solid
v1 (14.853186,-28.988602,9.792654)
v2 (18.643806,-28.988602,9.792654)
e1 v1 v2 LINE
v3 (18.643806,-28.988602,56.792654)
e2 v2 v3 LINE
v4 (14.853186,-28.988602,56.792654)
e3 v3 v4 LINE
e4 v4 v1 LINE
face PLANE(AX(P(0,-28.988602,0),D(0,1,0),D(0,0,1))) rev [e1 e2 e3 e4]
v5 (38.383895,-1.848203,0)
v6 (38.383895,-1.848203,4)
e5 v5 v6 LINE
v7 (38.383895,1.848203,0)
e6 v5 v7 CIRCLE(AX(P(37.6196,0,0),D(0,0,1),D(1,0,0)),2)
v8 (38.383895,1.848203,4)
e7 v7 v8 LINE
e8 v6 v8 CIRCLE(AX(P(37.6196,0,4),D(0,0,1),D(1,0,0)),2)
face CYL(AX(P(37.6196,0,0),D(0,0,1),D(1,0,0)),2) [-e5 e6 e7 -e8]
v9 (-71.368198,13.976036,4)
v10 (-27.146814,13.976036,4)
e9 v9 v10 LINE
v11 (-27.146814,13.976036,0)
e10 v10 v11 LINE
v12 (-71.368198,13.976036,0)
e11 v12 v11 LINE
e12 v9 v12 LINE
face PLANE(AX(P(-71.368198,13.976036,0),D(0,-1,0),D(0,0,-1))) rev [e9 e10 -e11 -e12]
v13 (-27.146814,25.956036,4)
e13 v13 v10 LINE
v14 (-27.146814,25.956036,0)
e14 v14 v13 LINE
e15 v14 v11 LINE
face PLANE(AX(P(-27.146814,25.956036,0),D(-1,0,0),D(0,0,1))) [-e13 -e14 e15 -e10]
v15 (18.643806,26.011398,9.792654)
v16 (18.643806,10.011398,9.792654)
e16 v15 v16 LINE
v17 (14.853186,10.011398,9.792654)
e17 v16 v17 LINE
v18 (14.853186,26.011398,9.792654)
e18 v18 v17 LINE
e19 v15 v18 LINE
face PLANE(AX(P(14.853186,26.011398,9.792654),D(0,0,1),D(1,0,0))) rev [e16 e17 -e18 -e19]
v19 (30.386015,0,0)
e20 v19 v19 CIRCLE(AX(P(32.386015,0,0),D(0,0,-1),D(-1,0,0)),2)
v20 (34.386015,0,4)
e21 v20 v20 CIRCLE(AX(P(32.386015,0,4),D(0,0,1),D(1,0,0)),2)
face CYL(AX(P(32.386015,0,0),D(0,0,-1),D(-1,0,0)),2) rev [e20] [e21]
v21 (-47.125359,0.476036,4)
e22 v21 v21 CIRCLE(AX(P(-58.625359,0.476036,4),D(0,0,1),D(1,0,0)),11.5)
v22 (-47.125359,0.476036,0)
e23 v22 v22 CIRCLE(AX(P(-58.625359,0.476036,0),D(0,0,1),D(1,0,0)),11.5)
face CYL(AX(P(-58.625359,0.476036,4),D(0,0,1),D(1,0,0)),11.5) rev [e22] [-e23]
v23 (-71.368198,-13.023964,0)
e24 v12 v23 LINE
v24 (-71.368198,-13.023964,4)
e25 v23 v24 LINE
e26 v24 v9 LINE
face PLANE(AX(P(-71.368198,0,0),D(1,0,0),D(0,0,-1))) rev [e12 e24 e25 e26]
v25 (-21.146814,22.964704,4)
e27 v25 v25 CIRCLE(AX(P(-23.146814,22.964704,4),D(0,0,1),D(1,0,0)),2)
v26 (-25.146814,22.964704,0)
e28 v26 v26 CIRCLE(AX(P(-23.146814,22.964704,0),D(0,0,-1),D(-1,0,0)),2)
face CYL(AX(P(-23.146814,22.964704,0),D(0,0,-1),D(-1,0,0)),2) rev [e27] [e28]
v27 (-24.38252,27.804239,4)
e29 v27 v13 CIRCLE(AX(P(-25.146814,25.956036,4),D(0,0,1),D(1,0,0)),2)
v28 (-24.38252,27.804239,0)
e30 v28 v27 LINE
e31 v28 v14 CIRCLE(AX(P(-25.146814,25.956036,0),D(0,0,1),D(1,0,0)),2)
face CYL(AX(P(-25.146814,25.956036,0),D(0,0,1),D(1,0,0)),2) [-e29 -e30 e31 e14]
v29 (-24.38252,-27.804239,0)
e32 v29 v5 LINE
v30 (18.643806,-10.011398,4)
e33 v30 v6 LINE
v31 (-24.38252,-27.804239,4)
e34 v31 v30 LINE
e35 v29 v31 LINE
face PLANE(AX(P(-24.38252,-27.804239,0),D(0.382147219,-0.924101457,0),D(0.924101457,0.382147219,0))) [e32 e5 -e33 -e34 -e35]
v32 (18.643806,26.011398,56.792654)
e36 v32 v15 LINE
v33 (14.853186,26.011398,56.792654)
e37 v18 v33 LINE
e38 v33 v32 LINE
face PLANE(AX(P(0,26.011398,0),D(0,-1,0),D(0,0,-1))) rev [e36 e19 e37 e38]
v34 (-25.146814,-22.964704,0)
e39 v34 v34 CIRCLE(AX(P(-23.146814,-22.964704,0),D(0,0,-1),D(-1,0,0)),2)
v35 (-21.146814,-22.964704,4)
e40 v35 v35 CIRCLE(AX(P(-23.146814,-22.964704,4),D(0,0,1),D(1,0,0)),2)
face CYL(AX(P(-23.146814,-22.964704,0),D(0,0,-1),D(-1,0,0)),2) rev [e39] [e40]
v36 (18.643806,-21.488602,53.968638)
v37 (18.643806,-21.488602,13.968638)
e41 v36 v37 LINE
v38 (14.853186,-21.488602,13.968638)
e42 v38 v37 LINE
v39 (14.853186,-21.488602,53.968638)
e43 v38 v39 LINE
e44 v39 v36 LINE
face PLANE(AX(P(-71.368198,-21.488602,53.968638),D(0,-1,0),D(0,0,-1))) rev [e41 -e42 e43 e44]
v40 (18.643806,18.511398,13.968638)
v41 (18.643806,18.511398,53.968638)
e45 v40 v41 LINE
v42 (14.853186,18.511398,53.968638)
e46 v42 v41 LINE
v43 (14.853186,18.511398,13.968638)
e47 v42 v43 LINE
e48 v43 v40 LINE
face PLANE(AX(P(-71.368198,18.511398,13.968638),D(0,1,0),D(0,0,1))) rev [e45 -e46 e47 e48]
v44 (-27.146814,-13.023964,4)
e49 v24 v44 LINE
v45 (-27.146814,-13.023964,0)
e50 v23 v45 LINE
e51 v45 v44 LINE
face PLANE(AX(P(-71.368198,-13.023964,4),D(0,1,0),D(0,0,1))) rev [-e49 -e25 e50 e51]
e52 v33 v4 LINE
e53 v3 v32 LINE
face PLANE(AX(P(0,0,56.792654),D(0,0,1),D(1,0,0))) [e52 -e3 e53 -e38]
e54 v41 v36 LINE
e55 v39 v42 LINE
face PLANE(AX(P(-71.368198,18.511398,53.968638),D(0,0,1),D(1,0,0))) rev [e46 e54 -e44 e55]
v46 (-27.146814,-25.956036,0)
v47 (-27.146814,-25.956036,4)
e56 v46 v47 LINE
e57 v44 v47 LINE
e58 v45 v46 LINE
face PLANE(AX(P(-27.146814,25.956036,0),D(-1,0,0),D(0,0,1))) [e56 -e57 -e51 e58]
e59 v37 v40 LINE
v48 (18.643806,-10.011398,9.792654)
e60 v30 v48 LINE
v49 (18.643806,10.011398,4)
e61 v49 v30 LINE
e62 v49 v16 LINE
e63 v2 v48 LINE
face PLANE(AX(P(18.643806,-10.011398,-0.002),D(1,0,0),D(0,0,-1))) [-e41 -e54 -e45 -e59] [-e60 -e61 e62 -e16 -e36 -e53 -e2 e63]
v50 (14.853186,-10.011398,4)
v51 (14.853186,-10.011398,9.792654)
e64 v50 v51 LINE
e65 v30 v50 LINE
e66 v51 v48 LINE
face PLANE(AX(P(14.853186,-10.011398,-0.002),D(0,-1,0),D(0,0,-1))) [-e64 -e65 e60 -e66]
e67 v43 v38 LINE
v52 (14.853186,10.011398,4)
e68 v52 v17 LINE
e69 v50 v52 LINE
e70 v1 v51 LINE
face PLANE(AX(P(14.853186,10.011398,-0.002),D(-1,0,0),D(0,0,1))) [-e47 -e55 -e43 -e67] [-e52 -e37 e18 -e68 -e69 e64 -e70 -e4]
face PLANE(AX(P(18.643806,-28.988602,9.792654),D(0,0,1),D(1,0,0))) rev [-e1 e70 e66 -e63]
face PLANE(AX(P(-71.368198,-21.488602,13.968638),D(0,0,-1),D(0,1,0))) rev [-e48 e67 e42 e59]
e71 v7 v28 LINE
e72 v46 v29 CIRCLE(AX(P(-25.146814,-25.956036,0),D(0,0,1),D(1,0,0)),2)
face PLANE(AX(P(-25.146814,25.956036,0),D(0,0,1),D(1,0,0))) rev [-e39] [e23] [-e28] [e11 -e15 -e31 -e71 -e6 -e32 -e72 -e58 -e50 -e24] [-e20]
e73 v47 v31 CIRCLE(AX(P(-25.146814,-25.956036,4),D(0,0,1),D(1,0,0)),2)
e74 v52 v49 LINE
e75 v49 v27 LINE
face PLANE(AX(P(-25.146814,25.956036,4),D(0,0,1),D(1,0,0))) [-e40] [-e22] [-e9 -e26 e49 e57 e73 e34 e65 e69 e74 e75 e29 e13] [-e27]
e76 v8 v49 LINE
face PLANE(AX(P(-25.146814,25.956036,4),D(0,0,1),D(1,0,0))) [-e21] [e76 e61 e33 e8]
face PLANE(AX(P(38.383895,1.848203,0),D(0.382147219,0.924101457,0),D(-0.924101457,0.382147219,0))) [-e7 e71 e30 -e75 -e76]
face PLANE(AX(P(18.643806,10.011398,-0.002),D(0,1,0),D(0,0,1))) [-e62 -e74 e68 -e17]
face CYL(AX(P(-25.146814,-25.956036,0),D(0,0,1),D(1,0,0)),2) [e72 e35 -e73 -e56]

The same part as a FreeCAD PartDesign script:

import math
import FreeCAD as App
import Part
import Sketcher
from FreeCAD import Vector


def add_polygon(sketch, points):
    """Adds a closed chain of lines whose ends are joined by coincident constraints."""
    first, n = sketch.GeometryCount, len(points)
    for a, b in zip(points, points[1:] + points[:1]):
        sketch.addGeometry(Part.LineSegment(App.Vector(*a, 0), App.Vector(*b, 0)), False)
    for i in range(n):
        sketch.addConstraint(Sketcher.Constraint("Coincident", first + i, 2, first + (i + 1) % n, 1))

doc = App.newDocument("Part")
params = doc.addObject("Spreadsheet::Sheet", "Params")
for row, (alias, value) in enumerate([
    ("sketch1_radius", "2 mm"),
    ("pad1_length", "4 mm"),
    ("sketch2_width", "27 mm"),
    ("sketch2_height", "4 mm"),
    ("pad2_length", "44.221384 mm"),
    ("sketch4_height", "47 mm"),
    ("pad4_length", "16 mm"),
    ("sketch5_height", "47 mm"),
    ("pad5_length", "18.977205 mm"),
    ("sketch6_width", "40 mm"),
    ("sketch7_diameter", "23 mm"),
    ("hole_diameter", "23 mm"),
    ("sketch8_diameter", "4 mm"),
    ("hole2_diameter", "4 mm"),
    ("hole2_depth", "56.792654 mm"),
], start=1):
    params.set(f"A{row}", alias)
    params.set(f"B{row}", "=" + value)
    params.setAlias(f"B{row}", alias)

body = doc.addObject("PartDesign::Body", "Body")

# Sketch on XY plane
sketch1 = body.newObject("Sketcher::SketchObject", "Sketch")
sketch1.AttachmentSupport = (doc.getObject("XY_Plane"), [""])
sketch1.MapMode = "FlatFace"
sketch1.AttachmentOffset = App.Placement(Vector(0, 0, 4), App.Rotation())
sketch1.addGeometry(Part.LineSegment(Vector(-27.1, 26, 0), Vector(-27.1, -26, 0)), False)
sketch1.addGeometry(Part.ArcOfCircle(Part.Circle(Vector(-25.1, -26, 0), Vector(0, 0, 1), 2), math.radians(180), math.radians(292)), False)
sketch1.addGeometry(Part.LineSegment(Vector(-24.4, -27.8, 0), Vector(38.4, -1.8, 0)), False)
sketch1.addGeometry(Part.ArcOfCircle(Part.Circle(Vector(37.6, 0, 0), Vector(0, 0, 1), 2), math.radians(-68), math.radians(68)), False)
sketch1.addGeometry(Part.LineSegment(Vector(38.4, 1.8, 0), Vector(-24.4, 27.8, 0)), False)
sketch1.addGeometry(Part.ArcOfCircle(Part.Circle(Vector(-25.1, 26, 0), Vector(0, 0, 1), 2), math.radians(68), math.radians(180)), False)
sketch1.addConstraint(Sketcher.Constraint("Tangent", 0, 2, 1, 1))
sketch1.addConstraint(Sketcher.Constraint("Tangent", 1, 2, 2, 1))
sketch1.addConstraint(Sketcher.Constraint("Tangent", 2, 2, 3, 1))
sketch1.addConstraint(Sketcher.Constraint("Tangent", 3, 2, 4, 1))
sketch1.addConstraint(Sketcher.Constraint("Tangent", 4, 2, 5, 1))
sketch1.addConstraint(Sketcher.Constraint("Tangent", 5, 2, 0, 1))
sketch1.addConstraint(Sketcher.Constraint("Vertical", 0))
sketch1.addConstraint(Sketcher.Constraint("Equal", 1, 3))
sketch1.addConstraint(Sketcher.Constraint("Equal", 3, 5))
sketch1.addConstraint(Sketcher.Constraint("Symmetric", 2, 2, 3, 2, -1))
sketch1.addConstraint(Sketcher.Constraint("Radius", 1, 2.0))
sketch1.addConstraint(Sketcher.Constraint("DistanceX", -1, 1, 3, 3, 37.6196))
sketch1.addConstraint(Sketcher.Constraint("DistanceY", 0, 2, 0, 1, 51.912072))
sketch1.addConstraint(Sketcher.Constraint("DistanceX", 1, 2, -1, 1, 24.38252))
sketch1.setExpression("Constraints[10]", "Params.sketch1_radius")
pad1 = body.newObject("PartDesign::Pad", "Pad")
pad1.Profile = sketch1
pad1.setExpression("Length", "Params.pad1_length")
pad1.Reversed = True

# Sketch on YZ plane
sketch2 = body.newObject("Sketcher::SketchObject", "Sketch001")
sketch2.AttachmentSupport = (doc.getObject("YZ_Plane"), [""])
sketch2.MapMode = "FlatFace"
sketch2.AttachmentOffset = App.Placement(Vector(0, 0, -27.146814), App.Rotation())
add_polygon(sketch2, [(14, 0), (-13, 0), (-13, 4), (14, 4)])  # lines 0-3
sketch2.addConstraint(Sketcher.Constraint("Horizontal", 0))
sketch2.addConstraint(Sketcher.Constraint("Vertical", 1))
sketch2.addConstraint(Sketcher.Constraint("Horizontal", 2))
sketch2.addConstraint(Sketcher.Constraint("Vertical", 3))
sketch2.addConstraint(Sketcher.Constraint("PointOnObject", 0, 2, -1))
sketch2.addConstraint(Sketcher.Constraint("DistanceX", 0, 2, 0, 1, 27.0))
sketch2.addConstraint(Sketcher.Constraint("DistanceY", 1, 1, 1, 2, 4.0))
sketch2.addConstraint(Sketcher.Constraint("DistanceX", 0, 2, -1, 1, 13.023964))
sketch2.setExpression("Constraints[9]", "Params.sketch2_width")
sketch2.setExpression("Constraints[10]", "Params.sketch2_height")
pad2 = body.newObject("PartDesign::Pad", "Pad001")
pad2.Profile = sketch2
pad2.setExpression("Length", "Params.pad2_length")
pad2.Reversed = True

# Sketch on XY plane
sketch3 = body.newObject("Sketcher::SketchObject", "Sketch002")
sketch3.AttachmentSupport = (doc.getObject("XY_Plane"), [""])
sketch3.MapMode = "FlatFace"
sketch3.AttachmentOffset = App.Placement(Vector(0, 0, 56.792654), App.Rotation())
add_polygon(sketch3, [(14.9, 10), (14.9, -10), (18.6, -10), (18.6, 10)])  # lines 0-3
sketch3.addConstraint(Sketcher.Constraint("Vertical", 0))
sketch3.addConstraint(Sketcher.Constraint("Horizontal", 1))
sketch3.addConstraint(Sketcher.Constraint("Vertical", 2))
sketch3.addConstraint(Sketcher.Constraint("Horizontal", 3))
sketch3.addConstraint(Sketcher.Constraint("DistanceX", 1, 1, 1, 2, 3.79062))
sketch3.addConstraint(Sketcher.Constraint("DistanceY", 0, 2, 0, 1, 20.022795))
sketch3.addConstraint(Sketcher.Constraint("DistanceX", -1, 1, 0, 2, 14.853186))
sketch3.addConstraint(Sketcher.Constraint("DistanceY", 0, 2, -1, 1, 10.011398))
pad3 = body.newObject("PartDesign::Pad", "Pad002")
pad3.Profile = sketch3
pad3.Type = "UpToFirst"
pad3.Reversed = True

# Sketch on XZ plane
sketch4 = body.newObject("Sketcher::SketchObject", "Sketch003")
sketch4.AttachmentSupport = (doc.getObject("XZ_Plane"), [""])
sketch4.MapMode = "FlatFace"
sketch4.AttachmentOffset = App.Placement(Vector(0, 0, -10.011398), App.Rotation())
add_polygon(sketch4, [(18.6, 56.8), (18.6, 9.8), (14.9, 9.8), (14.9, 56.8)])  # lines 0-3
sketch4.addConstraint(Sketcher.Constraint("Vertical", 0))
sketch4.addConstraint(Sketcher.Constraint("Horizontal", 1))
sketch4.addConstraint(Sketcher.Constraint("Vertical", 2))
sketch4.addConstraint(Sketcher.Constraint("Horizontal", 3))
sketch4.addConstraint(Sketcher.Constraint("DistanceY", 0, 2, 0, 1, 47.0))
sketch4.addConstraint(Sketcher.Constraint("DistanceX", 1, 2, 1, 1, 3.79062))
sketch4.addConstraint(Sketcher.Constraint("DistanceX", -1, 1, 0, 2, 18.643806))
sketch4.addConstraint(Sketcher.Constraint("DistanceY", -1, 1, 0, 2, 9.792654))
sketch4.setExpression("Constraints[8]", "Params.sketch4_height")
pad4 = body.newObject("PartDesign::Pad", "Pad003")
pad4.Profile = sketch4
pad4.setExpression("Length", "Params.pad4_length")
pad4.Reversed = True

# Sketch on XZ plane
sketch5 = body.newObject("Sketcher::SketchObject", "Sketch004")
sketch5.AttachmentSupport = (doc.getObject("XZ_Plane"), [""])
sketch5.MapMode = "FlatFace"
sketch5.AttachmentOffset = App.Placement(Vector(0, 0, 10.011398), App.Rotation())
add_polygon(sketch5, [(14.9, 56.8), (14.9, 9.8), (18.6, 9.8), (18.6, 56.8)])  # lines 0-3
sketch5.addConstraint(Sketcher.Constraint("Vertical", 0))
sketch5.addConstraint(Sketcher.Constraint("Horizontal", 1))
sketch5.addConstraint(Sketcher.Constraint("Vertical", 2))
sketch5.addConstraint(Sketcher.Constraint("Horizontal", 3))
sketch5.addConstraint(Sketcher.Constraint("DistanceY", 0, 2, 0, 1, 47.0))
sketch5.addConstraint(Sketcher.Constraint("DistanceX", 1, 1, 1, 2, 3.79062))
sketch5.addConstraint(Sketcher.Constraint("DistanceX", -1, 1, 0, 2, 14.853186))
sketch5.addConstraint(Sketcher.Constraint("DistanceY", -1, 1, 0, 2, 9.792654))
sketch5.setExpression("Constraints[8]", "Params.sketch5_height")
pad5 = body.newObject("PartDesign::Pad", "Pad004")
pad5.Profile = sketch5
pad5.setExpression("Length", "Params.pad5_length")

# Sketch on YZ plane
sketch6 = body.newObject("Sketcher::SketchObject", "Sketch005")
sketch6.AttachmentSupport = (doc.getObject("YZ_Plane"), [""])
sketch6.MapMode = "FlatFace"
sketch6.AttachmentOffset = App.Placement(Vector(0, 0, 18.643806), App.Rotation())
add_polygon(sketch6, [(19, 54), (-21, 54), (-21, 14), (19, 14)])  # lines 0-3
sketch6.addConstraint(Sketcher.Constraint("Horizontal", 0))
sketch6.addConstraint(Sketcher.Constraint("Vertical", 1))
sketch6.addConstraint(Sketcher.Constraint("Horizontal", 2))
sketch6.addConstraint(Sketcher.Constraint("Vertical", 3))
sketch6.addConstraint(Sketcher.Constraint("Equal", 2, 1))
sketch6.addConstraint(Sketcher.Constraint("DistanceX", 0, 2, 0, 1, 40.0))
sketch6.addConstraint(Sketcher.Constraint("DistanceY", -1, 1, 0, 2, 53.968638))
sketch6.addConstraint(Sketcher.Constraint("DistanceX", 0, 2, -1, 1, 21.488602))
sketch6.setExpression("Constraints[9]", "Params.sketch6_width")
pocket1 = body.newObject("PartDesign::Pocket", "Pocket")
pocket1.Profile = sketch6
pocket1.Type = "ThroughAll"

# Sketch on XY plane
sketch7 = body.newObject("Sketcher::SketchObject", "Sketch006")
sketch7.AttachmentSupport = (doc.getObject("XY_Plane"), [""])
sketch7.MapMode = "FlatFace"
sketch7.AttachmentOffset = App.Placement(Vector(0, 0, 4), App.Rotation())
sketch7.addGeometry(Part.Circle(Vector(-59, 0, 0), Vector(0, 0, 1), 12), False)
sketch7.addConstraint(Sketcher.Constraint("Diameter", 0, 23.0))
sketch7.addConstraint(Sketcher.Constraint("DistanceX", 0, 3, -1, 1, 58.625359))
sketch7.addConstraint(Sketcher.Constraint("DistanceY", -1, 1, 0, 3, 0.476036))
sketch7.setExpression("Constraints[0]", "Params.sketch7_diameter")
doc.recompute()
hole = body.newObject("PartDesign::Hole", "Hole")
hole.Profile = sketch7
hole.ThreadType = "None"
hole.setExpression("Diameter", "Params.hole_diameter")
hole.DepthType = "ThroughAll"

# Sketch on XY plane
sketch8 = body.newObject("Sketcher::SketchObject", "Sketch007")
sketch8.AttachmentSupport = (doc.getObject("XY_Plane"), [""])
sketch8.MapMode = "FlatFace"
sketch8.addGeometry(Part.Circle(Vector(-23.1, -23, 0), Vector(0, 0, 1), 2), False)
sketch8.addGeometry(Part.Circle(Vector(-23.1, 23, 0), Vector(0, 0, 1), 2), False)
sketch8.addGeometry(Part.Circle(Vector(32.4, 0, 0), Vector(0, 0, 1), 2), False)
sketch8.addConstraint(Sketcher.Constraint("Equal", 0, 1))
sketch8.addConstraint(Sketcher.Constraint("Equal", 1, 2))
sketch8.addConstraint(Sketcher.Constraint("Symmetric", 0, 3, 1, 3, -1))
sketch8.addConstraint(Sketcher.Constraint("PointOnObject", 2, 3, -1))
sketch8.addConstraint(Sketcher.Constraint("Diameter", 0, 4.0))
sketch8.addConstraint(Sketcher.Constraint("DistanceY", 0, 3, 1, 3, 45.929408))
sketch8.addConstraint(Sketcher.Constraint("DistanceX", 0, 3, 2, 3, 55.53283))
sketch8.addConstraint(Sketcher.Constraint("DistanceX", 0, 3, -1, 1, 23.146814))
sketch8.setExpression("Constraints[4]", "Params.sketch8_diameter")
doc.recompute()
hole2 = body.newObject("PartDesign::Hole", "Hole001")
hole2.Profile = sketch8
hole2.ThreadType = "None"
hole2.setExpression("Diameter", "Params.hole2_diameter")
hole2.DepthType = "Dimension"
hole2.setExpression("Depth", "Params.hole2_depth")
hole2.DrillPoint = "Flat"
hole2.Reversed = True

doc.recompute()
